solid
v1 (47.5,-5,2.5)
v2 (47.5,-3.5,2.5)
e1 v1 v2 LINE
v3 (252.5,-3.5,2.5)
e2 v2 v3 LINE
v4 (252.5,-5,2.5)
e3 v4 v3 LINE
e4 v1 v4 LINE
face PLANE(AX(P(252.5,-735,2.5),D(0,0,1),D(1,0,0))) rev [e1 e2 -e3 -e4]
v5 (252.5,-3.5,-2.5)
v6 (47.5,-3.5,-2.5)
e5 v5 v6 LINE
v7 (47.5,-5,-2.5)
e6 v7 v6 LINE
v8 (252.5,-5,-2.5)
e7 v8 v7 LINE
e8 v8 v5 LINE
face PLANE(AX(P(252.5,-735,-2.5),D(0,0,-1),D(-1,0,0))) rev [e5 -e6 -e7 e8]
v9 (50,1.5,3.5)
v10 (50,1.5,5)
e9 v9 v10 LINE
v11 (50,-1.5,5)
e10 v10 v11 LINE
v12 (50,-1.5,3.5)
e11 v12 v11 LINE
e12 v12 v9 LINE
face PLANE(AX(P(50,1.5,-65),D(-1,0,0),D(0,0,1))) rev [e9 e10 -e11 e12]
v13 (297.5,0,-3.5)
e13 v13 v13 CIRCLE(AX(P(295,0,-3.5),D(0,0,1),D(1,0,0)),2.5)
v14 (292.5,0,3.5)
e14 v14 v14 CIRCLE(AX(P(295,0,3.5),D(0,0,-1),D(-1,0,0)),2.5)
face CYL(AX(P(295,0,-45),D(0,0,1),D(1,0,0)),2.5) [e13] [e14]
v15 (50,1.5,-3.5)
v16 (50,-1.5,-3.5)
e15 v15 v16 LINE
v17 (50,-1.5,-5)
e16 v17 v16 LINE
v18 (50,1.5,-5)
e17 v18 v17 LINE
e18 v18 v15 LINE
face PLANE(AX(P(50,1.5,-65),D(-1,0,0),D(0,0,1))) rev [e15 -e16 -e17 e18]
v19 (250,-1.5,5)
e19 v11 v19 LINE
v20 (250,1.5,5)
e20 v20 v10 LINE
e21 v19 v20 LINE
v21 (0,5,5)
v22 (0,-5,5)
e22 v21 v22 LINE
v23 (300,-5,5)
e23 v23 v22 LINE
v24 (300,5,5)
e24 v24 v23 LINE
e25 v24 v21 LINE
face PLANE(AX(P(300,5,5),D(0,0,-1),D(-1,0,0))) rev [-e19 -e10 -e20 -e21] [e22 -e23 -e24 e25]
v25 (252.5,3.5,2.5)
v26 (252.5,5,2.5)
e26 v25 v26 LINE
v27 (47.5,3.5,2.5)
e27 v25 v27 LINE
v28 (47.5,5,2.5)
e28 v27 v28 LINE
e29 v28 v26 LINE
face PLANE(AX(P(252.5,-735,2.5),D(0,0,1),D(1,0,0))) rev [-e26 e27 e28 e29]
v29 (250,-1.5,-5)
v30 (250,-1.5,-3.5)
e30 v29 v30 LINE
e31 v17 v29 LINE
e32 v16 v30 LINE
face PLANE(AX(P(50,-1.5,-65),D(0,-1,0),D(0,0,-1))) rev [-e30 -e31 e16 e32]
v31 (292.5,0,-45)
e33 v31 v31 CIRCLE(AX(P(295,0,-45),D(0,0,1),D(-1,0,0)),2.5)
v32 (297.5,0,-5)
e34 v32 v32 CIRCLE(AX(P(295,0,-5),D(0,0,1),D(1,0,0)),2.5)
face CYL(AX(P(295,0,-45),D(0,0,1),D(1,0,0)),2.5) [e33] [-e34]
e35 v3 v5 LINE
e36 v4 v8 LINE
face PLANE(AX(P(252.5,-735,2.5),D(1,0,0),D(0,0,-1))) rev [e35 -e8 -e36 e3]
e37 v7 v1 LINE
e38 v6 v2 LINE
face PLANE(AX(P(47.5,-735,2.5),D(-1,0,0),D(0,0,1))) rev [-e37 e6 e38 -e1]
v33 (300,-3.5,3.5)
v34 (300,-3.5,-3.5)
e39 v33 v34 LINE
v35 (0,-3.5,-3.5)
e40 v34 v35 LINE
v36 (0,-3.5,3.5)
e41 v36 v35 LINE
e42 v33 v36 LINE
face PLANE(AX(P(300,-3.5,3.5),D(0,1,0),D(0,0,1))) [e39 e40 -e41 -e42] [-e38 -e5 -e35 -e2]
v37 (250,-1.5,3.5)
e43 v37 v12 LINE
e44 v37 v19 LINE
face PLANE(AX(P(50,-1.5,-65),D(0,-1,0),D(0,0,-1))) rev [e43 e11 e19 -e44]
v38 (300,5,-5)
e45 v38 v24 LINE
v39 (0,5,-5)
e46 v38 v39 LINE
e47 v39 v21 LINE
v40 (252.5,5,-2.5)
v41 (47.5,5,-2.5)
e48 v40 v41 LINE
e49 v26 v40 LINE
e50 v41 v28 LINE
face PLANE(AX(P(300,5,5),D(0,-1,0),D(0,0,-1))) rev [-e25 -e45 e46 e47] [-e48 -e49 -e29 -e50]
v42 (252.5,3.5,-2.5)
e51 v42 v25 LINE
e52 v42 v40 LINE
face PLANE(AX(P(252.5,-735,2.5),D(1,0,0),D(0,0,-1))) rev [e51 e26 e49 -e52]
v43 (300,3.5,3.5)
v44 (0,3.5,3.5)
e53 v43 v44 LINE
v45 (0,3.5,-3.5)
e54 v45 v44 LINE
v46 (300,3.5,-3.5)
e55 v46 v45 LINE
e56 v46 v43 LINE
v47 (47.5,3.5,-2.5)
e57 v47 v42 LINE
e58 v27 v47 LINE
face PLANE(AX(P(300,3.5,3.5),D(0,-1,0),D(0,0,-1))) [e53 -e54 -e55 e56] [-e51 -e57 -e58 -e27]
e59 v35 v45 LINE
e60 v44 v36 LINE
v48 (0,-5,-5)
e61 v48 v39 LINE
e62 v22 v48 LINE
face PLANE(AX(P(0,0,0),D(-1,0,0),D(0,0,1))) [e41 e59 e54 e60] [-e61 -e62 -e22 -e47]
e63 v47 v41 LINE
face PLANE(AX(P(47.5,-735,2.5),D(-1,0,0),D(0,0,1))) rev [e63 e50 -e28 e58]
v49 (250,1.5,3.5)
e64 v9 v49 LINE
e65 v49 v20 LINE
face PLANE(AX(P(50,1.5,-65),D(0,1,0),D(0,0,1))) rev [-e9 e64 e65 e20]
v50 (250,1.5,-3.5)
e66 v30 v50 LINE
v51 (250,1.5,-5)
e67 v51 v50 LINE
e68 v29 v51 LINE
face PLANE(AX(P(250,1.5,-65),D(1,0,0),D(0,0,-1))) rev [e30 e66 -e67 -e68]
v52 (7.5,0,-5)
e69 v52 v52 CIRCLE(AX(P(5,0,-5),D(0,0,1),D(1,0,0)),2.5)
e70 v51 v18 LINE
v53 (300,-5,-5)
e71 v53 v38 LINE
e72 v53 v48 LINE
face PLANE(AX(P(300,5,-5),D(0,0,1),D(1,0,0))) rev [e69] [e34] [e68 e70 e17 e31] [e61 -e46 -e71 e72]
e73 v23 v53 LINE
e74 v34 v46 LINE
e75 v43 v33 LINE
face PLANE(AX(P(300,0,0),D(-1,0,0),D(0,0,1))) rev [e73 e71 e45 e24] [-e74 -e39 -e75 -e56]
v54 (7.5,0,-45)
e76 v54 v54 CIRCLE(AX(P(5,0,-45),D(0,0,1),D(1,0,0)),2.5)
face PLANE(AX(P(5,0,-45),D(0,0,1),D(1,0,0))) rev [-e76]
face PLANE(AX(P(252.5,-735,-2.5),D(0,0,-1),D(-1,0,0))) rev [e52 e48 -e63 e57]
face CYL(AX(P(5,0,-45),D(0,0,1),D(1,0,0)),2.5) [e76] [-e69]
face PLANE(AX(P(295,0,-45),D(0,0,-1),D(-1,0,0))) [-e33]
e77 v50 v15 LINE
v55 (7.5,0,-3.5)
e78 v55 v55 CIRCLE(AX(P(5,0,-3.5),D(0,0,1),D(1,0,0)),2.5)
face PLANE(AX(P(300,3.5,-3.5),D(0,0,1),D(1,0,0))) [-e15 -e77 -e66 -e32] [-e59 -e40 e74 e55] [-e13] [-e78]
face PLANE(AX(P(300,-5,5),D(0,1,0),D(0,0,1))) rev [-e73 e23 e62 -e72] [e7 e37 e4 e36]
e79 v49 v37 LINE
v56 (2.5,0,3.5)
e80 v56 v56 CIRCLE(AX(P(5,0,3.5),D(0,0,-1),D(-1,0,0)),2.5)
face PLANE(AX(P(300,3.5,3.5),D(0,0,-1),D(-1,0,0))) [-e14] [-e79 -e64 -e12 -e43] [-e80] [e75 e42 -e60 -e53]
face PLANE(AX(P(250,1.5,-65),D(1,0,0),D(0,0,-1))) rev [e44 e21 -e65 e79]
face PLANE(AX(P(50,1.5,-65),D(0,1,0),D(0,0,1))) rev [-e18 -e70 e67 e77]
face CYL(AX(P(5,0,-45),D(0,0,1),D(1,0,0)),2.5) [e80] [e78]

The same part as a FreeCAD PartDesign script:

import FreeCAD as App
import Part
import Sketcher
from FreeCAD import Vector
Q = App.Units.Quantity


def add_polygon(sketch, points):
    """Adds a closed chain of lines whose ends are joined by coincident constraints."""
    first, n = sketch.GeometryCount, len(points)
    for a, b in zip(points, points[1:] + points[:1]):
        sketch.addGeometry(Part.LineSegment(App.Vector(*a, 0), App.Vector(*b, 0)), False)
    for i in range(n):
        sketch.addConstraint(Sketcher.Constraint("Coincident", first + i, 2, first + (i + 1) % n, 1))

doc = App.newDocument("Part")
params = doc.addObject("Spreadsheet::Sheet", "Params")
for row, (alias, value) in enumerate([
    ("sketch1_width", "10 mm"),
    ("sketch1_width2", "7 mm"),
    ("pad1_length", "300 mm"),
    ("sketch2_width", "205 mm"),
    ("sketch2_height", "5 mm"),
    ("pocket1_length", "740 mm"),
    ("sketch3_diameter", "5 mm"),
    ("pad2_length", "50 mm"),
    ("sketch4_width", "200 mm"),
    ("sketch4_height", "3 mm"),
    ("pocket2_length", "70 mm"),
], start=1):
    params.set(f"A{row}", alias)
    params.set(f"B{row}", "=" + value)
    params.setAlias(f"B{row}", alias)

body = doc.addObject("PartDesign::Body", "Body")

# Sketch on YZ plane
sketch1 = body.newObject("Sketcher::SketchObject", "Sketch")
sketch1.AttachmentSupport = (doc.getObject("YZ_Plane"), [""])
sketch1.MapMode = "FlatFace"
add_polygon(sketch1, [(-5, 5), (-5, -5), (5, -5), (5, 5)])  # lines 0-3
add_polygon(sketch1, [(4, -4), (-4, -4), (-4, 4), (4, 4)])  # lines 4-7
sketch1.addConstraint([
    Sketcher.Constraint("Vertical", 0),
    Sketcher.Constraint("Horizontal", 1),
    Sketcher.Constraint("Vertical", 2),
    Sketcher.Constraint("Horizontal", 3),
    Sketcher.Constraint("Horizontal", 4),
    Sketcher.Constraint("Vertical", 5),
    Sketcher.Constraint("Horizontal", 6),
    Sketcher.Constraint("Vertical", 7),
    Sketcher.Constraint("Symmetric", 0, 2, 2, 2, -1, 1),
    Sketcher.Constraint("Symmetric", 4, 2, 6, 2, -1, 1),
    Sketcher.Constraint("Equal", 3, 0),
    Sketcher.Constraint("Equal", 6, 5),
    Sketcher.Constraint("DistanceX", 1, 1, 1, 2, Q("10 mm")),
    Sketcher.Constraint("DistanceX", 4, 2, 4, 1, Q("7 mm")),
])
sketch1.setExpression("Constraints[20]", "Params.sketch1_width")
sketch1.setExpression("Constraints[21]", "Params.sketch1_width2")
pad1 = body.newObject("PartDesign::Pad", "Pad")
pad1.Profile = sketch1
pad1.setExpression("Length", "Params.pad1_length")

# Sketch on XZ plane
sketch2 = body.newObject("Sketcher::SketchObject", "Sketch001")
sketch2.AttachmentSupport = (doc.getObject("XZ_Plane"), [""])
sketch2.MapMode = "FlatFace"
sketch2.AttachmentOffset = App.Placement(Vector(0, 0, -5), App.Rotation())
add_polygon(sketch2, [(252, 2), (252, -2), (48, -2), (48, 2)])  # lines 0-3
sketch2.addConstraint([
    Sketcher.Constraint("Vertical", 0),
    Sketcher.Constraint("Horizontal", 1),
    Sketcher.Constraint("Vertical", 2),
    Sketcher.Constraint("Horizontal", 3),
    Sketcher.Constraint("DistanceX", 1, 2, 1, 1, Q("205 mm")),
    Sketcher.Constraint("DistanceY", 0, 2, 0, 1, Q("5 mm")),
    Sketcher.Constraint("DistanceX", -1, 1, 0, 2, Q("252.5 mm")),
    Sketcher.Constraint("DistanceY", 0, 2, -1, 1, Q("2.5 mm")),
])
sketch2.setExpression("Constraints[8]", "Params.sketch2_width")
sketch2.setExpression("Constraints[9]", "Params.sketch2_height")
pocket1 = body.newObject("PartDesign::Pocket", "Pocket")
pocket1.Profile = sketch2
pocket1.setExpression("Length", "Params.pocket1_length")
pocket1.Reversed = True

# Sketch on XY plane
sketch3 = body.newObject("Sketcher::SketchObject", "Sketch002")
sketch3.AttachmentSupport = (doc.getObject("XY_Plane"), [""])
sketch3.MapMode = "FlatFace"
sketch3.AttachmentOffset = App.Placement(Vector(0, 0, 5), App.Rotation())
sketch3.addGeometry([
    Part.Circle(Vector(5, 0, 0), Vector(0, 0, 1), 2.5),
    Part.Circle(Vector(295, 0, 0), Vector(0, 0, 1), 2.5),
], False)
sketch3.addConstraint([
    Sketcher.Constraint("Equal", 0, 1),
    Sketcher.Constraint("PointOnObject", 0, 3, -1),
    Sketcher.Constraint("PointOnObject", 1, 3, -1),
    Sketcher.Constraint("Diameter", 0, Q("5 mm")),
    Sketcher.Constraint("DistanceX", -1, 1, 0, 3, Q("5 mm")),
    Sketcher.Constraint("DistanceX", -1, 1, 1, 3, Q("295 mm")),
])
sketch3.setExpression("Constraints[3]", "Params.sketch3_diameter")
pad2 = body.newObject("PartDesign::Pad", "Pad001")
pad2.Profile = sketch3
pad2.setExpression("Length", "Params.pad2_length")
pad2.Reversed = True

# Sketch on XY plane
sketch4 = body.newObject("Sketcher::SketchObject", "Sketch003")
sketch4.AttachmentSupport = (doc.getObject("XY_Plane"), [""])
sketch4.MapMode = "FlatFace"
sketch4.AttachmentOffset = App.Placement(Vector(0, 0, 5), App.Rotation())
add_polygon(sketch4, [(50, 1.5), (50, -1.5), (250, -1.5), (250, 1.5)])  # lines 0-3
sketch4.addConstraint([
    Sketcher.Constraint("Vertical", 0),
    Sketcher.Constraint("Horizontal", 1),
    Sketcher.Constraint("Vertical", 2),
    Sketcher.Constraint("Horizontal", 3),
    Sketcher.Constraint("DistanceX", 1, 1, 1, 2, Q("200 mm")),
    Sketcher.Constraint("DistanceY", 0, 2, 0, 1, Q("3 mm")),
    Sketcher.Constraint("DistanceX", -1, 1, 0, 2, Q("50 mm")),
    Sketcher.Constraint("DistanceY", 0, 2, -1, 1, Q("1.5 mm")),
])
sketch4.setExpression("Constraints[8]", "Params.sketch4_width")
sketch4.setExpression("Constraints[9]", "Params.sketch4_height")
pocket2 = body.newObject("PartDesign::Pocket", "Pocket001")
pocket2.Profile = sketch4
pocket2.setExpression("Length", "Params.pocket2_length")

doc.recompute()
